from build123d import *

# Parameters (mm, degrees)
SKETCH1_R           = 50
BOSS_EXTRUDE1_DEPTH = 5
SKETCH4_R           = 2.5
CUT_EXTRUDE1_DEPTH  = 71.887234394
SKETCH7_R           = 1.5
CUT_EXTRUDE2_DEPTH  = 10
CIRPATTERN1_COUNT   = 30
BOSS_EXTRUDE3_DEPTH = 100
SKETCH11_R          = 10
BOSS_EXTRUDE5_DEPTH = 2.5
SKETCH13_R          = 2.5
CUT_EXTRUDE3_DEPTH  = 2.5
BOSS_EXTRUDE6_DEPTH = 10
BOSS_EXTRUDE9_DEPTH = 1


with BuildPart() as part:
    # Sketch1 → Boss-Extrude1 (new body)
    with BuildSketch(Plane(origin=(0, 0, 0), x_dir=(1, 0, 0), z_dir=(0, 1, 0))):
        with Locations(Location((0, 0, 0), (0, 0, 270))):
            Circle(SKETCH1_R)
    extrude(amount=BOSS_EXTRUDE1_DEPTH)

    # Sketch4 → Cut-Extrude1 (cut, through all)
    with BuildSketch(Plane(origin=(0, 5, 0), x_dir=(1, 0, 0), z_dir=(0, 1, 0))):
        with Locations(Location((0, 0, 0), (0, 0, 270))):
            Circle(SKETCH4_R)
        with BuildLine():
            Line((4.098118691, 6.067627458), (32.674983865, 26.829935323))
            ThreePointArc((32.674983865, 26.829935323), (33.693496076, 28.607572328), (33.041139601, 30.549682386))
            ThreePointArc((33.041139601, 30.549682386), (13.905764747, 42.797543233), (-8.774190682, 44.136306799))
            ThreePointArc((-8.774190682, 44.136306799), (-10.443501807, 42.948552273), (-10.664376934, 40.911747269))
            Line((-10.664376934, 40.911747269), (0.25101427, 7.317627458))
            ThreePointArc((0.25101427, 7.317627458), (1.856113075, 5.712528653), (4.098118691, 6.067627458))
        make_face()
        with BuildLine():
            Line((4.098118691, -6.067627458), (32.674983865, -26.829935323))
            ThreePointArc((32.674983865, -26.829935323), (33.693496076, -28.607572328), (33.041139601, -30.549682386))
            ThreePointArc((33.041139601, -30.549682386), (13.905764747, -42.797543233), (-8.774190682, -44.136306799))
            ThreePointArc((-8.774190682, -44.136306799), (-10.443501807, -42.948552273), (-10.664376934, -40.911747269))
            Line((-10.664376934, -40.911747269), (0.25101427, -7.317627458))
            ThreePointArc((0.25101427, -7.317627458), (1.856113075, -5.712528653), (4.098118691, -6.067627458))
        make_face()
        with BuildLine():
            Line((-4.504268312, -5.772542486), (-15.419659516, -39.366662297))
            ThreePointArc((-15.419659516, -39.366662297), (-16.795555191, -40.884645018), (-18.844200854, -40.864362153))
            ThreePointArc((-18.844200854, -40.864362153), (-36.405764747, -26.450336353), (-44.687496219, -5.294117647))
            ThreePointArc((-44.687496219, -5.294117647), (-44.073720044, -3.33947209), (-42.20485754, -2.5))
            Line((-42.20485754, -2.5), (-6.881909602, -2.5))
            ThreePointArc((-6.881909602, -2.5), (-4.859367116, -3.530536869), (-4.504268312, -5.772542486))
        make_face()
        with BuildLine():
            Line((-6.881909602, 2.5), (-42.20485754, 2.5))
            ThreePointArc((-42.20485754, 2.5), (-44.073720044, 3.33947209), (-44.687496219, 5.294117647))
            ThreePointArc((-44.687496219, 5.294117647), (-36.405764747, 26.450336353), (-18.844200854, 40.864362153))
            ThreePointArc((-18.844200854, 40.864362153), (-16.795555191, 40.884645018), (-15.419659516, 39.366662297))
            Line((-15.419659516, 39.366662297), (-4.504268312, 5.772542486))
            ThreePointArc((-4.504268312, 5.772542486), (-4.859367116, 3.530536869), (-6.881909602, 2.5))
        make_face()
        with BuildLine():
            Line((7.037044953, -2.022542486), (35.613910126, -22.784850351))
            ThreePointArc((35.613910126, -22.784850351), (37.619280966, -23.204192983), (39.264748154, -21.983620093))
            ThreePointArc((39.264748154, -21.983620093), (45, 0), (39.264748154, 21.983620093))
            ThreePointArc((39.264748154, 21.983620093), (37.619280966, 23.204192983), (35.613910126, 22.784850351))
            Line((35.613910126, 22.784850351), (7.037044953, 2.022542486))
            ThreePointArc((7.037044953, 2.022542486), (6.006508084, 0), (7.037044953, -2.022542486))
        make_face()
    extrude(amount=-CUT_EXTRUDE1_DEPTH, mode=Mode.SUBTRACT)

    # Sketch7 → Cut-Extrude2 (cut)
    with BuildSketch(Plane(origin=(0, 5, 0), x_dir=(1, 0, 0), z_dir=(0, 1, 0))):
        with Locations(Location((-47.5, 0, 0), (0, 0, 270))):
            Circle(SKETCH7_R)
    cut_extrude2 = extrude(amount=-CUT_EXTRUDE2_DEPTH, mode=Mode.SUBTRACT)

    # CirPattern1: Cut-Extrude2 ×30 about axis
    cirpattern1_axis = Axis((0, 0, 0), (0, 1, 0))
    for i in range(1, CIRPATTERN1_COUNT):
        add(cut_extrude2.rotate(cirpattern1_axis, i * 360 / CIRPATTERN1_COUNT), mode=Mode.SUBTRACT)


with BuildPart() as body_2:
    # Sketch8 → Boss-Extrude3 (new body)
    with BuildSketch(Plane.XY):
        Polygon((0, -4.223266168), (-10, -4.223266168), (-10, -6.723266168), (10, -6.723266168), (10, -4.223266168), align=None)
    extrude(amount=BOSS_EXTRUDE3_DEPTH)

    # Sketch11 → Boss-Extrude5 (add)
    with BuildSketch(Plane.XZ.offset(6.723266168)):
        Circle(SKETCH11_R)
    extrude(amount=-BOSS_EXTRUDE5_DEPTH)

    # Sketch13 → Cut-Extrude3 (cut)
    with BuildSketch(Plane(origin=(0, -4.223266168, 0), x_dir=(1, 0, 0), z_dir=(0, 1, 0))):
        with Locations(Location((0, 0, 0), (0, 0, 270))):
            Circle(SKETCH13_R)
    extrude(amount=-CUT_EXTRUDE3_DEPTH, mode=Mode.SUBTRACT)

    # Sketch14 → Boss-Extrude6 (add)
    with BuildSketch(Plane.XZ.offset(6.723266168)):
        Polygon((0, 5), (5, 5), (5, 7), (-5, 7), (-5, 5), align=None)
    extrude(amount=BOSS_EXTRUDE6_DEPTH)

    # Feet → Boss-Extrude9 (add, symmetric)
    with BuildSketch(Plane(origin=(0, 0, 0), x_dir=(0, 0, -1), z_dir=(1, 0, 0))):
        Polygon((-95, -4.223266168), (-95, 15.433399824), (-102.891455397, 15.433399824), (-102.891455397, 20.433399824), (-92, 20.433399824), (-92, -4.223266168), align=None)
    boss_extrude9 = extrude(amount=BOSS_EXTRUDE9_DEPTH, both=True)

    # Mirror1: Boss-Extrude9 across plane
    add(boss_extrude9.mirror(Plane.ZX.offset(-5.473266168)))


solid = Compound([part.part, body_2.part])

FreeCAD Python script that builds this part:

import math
import FreeCAD as App
import Part
import Sketcher
from FreeCAD import Vector
Q = App.Units.Quantity


def add_polygon(sketch, points):
    """Adds a closed chain of lines whose ends are joined by coincident constraints."""
    first, n = sketch.GeometryCount, len(points)
    for a, b in zip(points, points[1:] + points[:1]):
        sketch.addGeometry(Part.LineSegment(App.Vector(*a, 0), App.Vector(*b, 0)), False)
    for i in range(n):
        sketch.addConstraint(Sketcher.Constraint("Coincident", first + i, 2, first + (i + 1) % n, 1))

doc = App.newDocument("Part")
params = doc.addObject("Spreadsheet::Sheet", "Params")
for row, (alias, value) in enumerate([
    ("sketch1_diameter", "100 mm"),
    ("pad1_length", "5 mm"),
    ("sketch2_diameter", "5 mm"),
    ("sketch2_radius", "45 mm"),
    ("sketch3_diameter", "3 mm"),
    ("pocket2_length", "10 mm"),
    ("sketch4_width", "20 mm"),
    ("sketch4_height", "2.5 mm"),
    ("pad2_length", "100 mm"),
    ("sketch5_diameter", "20 mm"),
    ("pad3_length", "2.5 mm"),
    ("sketch6_diameter", "5 mm"),
    ("pocket3_length", "2.5 mm"),
    ("sketch7_width", "10 mm"),
    ("sketch7_height", "2 mm"),
    ("pad4_length", "10 mm"),
    ("sketch8_width", "5 mm"),
    ("sketch8_height", "3 mm"),
    ("pad5_length", "2 mm"),
], start=1):
    params.set(f"A{row}", alias)
    params.set(f"B{row}", "=" + value)
    params.setAlias(f"B{row}", alias)

body = doc.addObject("PartDesign::Body", "Body")

sketch1 = body.newObject("Sketcher::SketchObject", "Sketch")
sketch1.AttachmentSupport = (doc.getObject("XZ_Plane"), [""])
sketch1.MapMode = "FlatFace"
sketch1.addGeometry(Part.Circle(Vector(0, 0, 0), Vector(0, 0, 1), 50), False)
sketch1.addConstraint(Sketcher.Constraint("Coincident", 0, 3, -1, 1))
sketch1.addConstraint(Sketcher.Constraint("Diameter", 0, 100.0))
sketch1.setExpression("Constraints[1]", "Params.sketch1_diameter")
pad1 = body.newObject("PartDesign::Pad", "Pad")
pad1.Profile = sketch1
pad1.setExpression("Length", "Params.pad1_length")
pad1.Reversed = True

sketch2 = body.newObject("Sketcher::SketchObject", "Sketch001")
sketch2.AttachmentSupport = (doc.getObject("XZ_Plane"), [""])
sketch2.MapMode = "FlatFace"
sketch2.AttachmentOffset = App.Placement(Vector(0, 0, -5), App.Rotation())
sketch2.addGeometry(Part.Circle(Vector(0, 0, 0), Vector(0, 0, 1), 2.5), False)
sketch2.addGeometry(Part.LineSegment(Vector(4.098119, -6.067627, 0), Vector(32.674984, -26.829935, 0)), False)
sketch2.addGeometry(Part.ArcOfCircle(Part.Circle(Vector(31.205521, -28.852478, 0), Vector(0, 0, 1), 2.5), math.radians(-42.756327), math.radians(54)), False)
sketch2.addGeometry(Part.ArcOfCircle(Part.Circle(Vector(0, 0, 0), Vector(0, 0, 1), 45), math.radians(-101.243673), math.radians(-42.756327)), False)
sketch2.addGeometry(Part.ArcOfCircle(Part.Circle(Vector(-8.286736, -41.68429, 0), Vector(0, 0, 1), 2.5), math.radians(162), math.radians(258.756327)), False)
sketch2.addGeometry(Part.LineSegment(Vector(-10.664377, -40.911747, 0), Vector(0.251014, -7.317627, 0)), False)
sketch2.addGeometry(Part.ArcOfCircle(Part.Circle(Vector(2.628656, -8.09017, 0), Vector(0, 0, 1), 2.5), math.radians(54), math.radians(162)), False)
sketch2.addGeometry(Part.LineSegment(Vector(32.674984, 26.829935, 0), Vector(4.098119, 6.067627, 0)), False)
sketch2.addGeometry(Part.ArcOfCircle(Part.Circle(Vector(2.628656, 8.09017, 0), Vector(0, 0, 1), 2.5), math.radians(-162), math.radians(-54)), False)
sketch2.addGeometry(Part.LineSegment(Vector(0.251014, 7.317627, 0), Vector(-10.664377, 40.911747, 0)), False)
sketch2.addGeometry(Part.ArcOfCircle(Part.Circle(Vector(-8.286736, 41.68429, 0), Vector(0, 0, 1), 2.5), math.radians(101.243673), math.radians(198)), False)
sketch2.addGeometry(Part.ArcOfCircle(Part.Circle(Vector(0, 0, 0), Vector(0, 0, 1), 45), math.radians(42.756327), math.radians(101.243673)), False)
sketch2.addGeometry(Part.ArcOfCircle(Part.Circle(Vector(31.205521, 28.852478, 0), Vector(0, 0, 1), 2.5), math.radians(-54), math.radians(42.756327)), False)
sketch2.addGeometry(Part.LineSegment(Vector(-15.41966, 39.366662, 0), Vector(-4.504268, 5.772542, 0)), False)
sketch2.addGeometry(Part.ArcOfCircle(Part.Circle(Vector(-6.88191, 5, 0), Vector(0, 0, 1), 2.5), math.radians(-90), math.radians(18)), False)
sketch2.addGeometry(Part.LineSegment(Vector(-6.88191, 2.5, 0), Vector(-42.204858, 2.5, 0)), False)
sketch2.addGeometry(Part.ArcOfCircle(Part.Circle(Vector(-42.204858, 5, 0), Vector(0, 0, 1), 2.5), math.radians(173.243673), math.radians(270)), False)
sketch2.addGeometry(Part.ArcOfCircle(Part.Circle(Vector(0, 0, 0), Vector(0, 0, 1), 45), math.radians(114.756327), math.radians(173.243673)), False)
sketch2.addGeometry(Part.ArcOfCircle(Part.Circle(Vector(-17.797301, 38.59412, 0), Vector(0, 0, 1), 2.5), math.radians(18), math.radians(114.756327)), False)
sketch2.addGeometry(Part.LineSegment(Vector(-42.204858, -2.5, 0), Vector(-6.88191, -2.5, 0)), False)
sketch2.addGeometry(Part.ArcOfCircle(Part.Circle(Vector(-6.88191, -5, 0), Vector(0, 0, 1), 2.5), math.radians(-18), math.radians(90)), False)
sketch2.addGeometry(Part.LineSegment(Vector(-4.504268, -5.772542, 0), Vector(-15.41966, -39.366662, 0)), False)
sketch2.addGeometry(Part.ArcOfCircle(Part.Circle(Vector(-17.797301, -38.59412, 0), Vector(0, 0, 1), 2.5), math.radians(-114.756327), math.radians(-18)), False)
sketch2.addGeometry(Part.ArcOfCircle(Part.Circle(Vector(0, 0, 0), Vector(0, 0, 1), 45), math.radians(-173.243673), math.radians(-114.756327)), False)
sketch2.addGeometry(Part.ArcOfCircle(Part.Circle(Vector(-42.204858, -5, 0), Vector(0, 0, 1), 2.5), math.radians(90), math.radians(186.756327)), False)
sketch2.addGeometry(Part.LineSegment(Vector(7.037045, 2.022542, 0), Vector(35.61391, 22.78485, 0)), False)
sketch2.addGeometry(Part.ArcOfCircle(Part.Circle(Vector(37.083373, 20.762308, 0), Vector(0, 0, 1), 2.5), math.radians(29.243673), math.radians(126)), False)
sketch2.addGeometry(Part.ArcOfCircle(Part.Circle(Vector(0, 0, 0), Vector(0, 0, 1), 45), math.radians(-29.243673), math.radians(29.243673)), False)
sketch2.addGeometry(Part.ArcOfCircle(Part.Circle(Vector(37.083373, -20.762308, 0), Vector(0, 0, 1), 2.5), math.radians(-126), math.radians(-29.243673)), False)
sketch2.addGeometry(Part.LineSegment(Vector(35.61391, -22.78485, 0), Vector(7.037045, -2.022542, 0)), False)
sketch2.addGeometry(Part.ArcOfCircle(Part.Circle(Vector(8.506508, 0, 0), Vector(0, 0, 1), 2.5), math.radians(126), math.radians(234)), False)
sketch2.addConstraint(Sketcher.Constraint("Tangent", 1, 2, 2, 2))
sketch2.addConstraint(Sketcher.Constraint("Tangent", 2, 1, 3, 2))
sketch2.addConstraint(Sketcher.Constraint("Tangent", 3, 1, 4, 2))
sketch2.addConstraint(Sketcher.Constraint("Tangent", 4, 1, 5, 1))
sketch2.addConstraint(Sketcher.Constraint("Tangent", 5, 2, 6, 2))
sketch2.addConstraint(Sketcher.Constraint("Tangent", 6, 1, 1, 1))
sketch2.addConstraint(Sketcher.Constraint("Tangent", 7, 2, 8, 2))
sketch2.addConstraint(Sketcher.Constraint("Tangent", 8, 1, 9, 1))
sketch2.addConstraint(Sketcher.Constraint("Tangent", 9, 2, 10, 2))
sketch2.addConstraint(Sketcher.Constraint("Tangent", 10, 1, 11, 2))
sketch2.addConstraint(Sketcher.Constraint("Tangent", 11, 1, 12, 2))
sketch2.addConstraint(Sketcher.Constraint("Tangent", 12, 1, 7, 1))
sketch2.addConstraint(Sketcher.Constraint("Tangent", 13, 2, 14, 2))
sketch2.addConstraint(Sketcher.Constraint("Tangent", 14, 1, 15, 1))
sketch2.addConstraint(Sketcher.Constraint("Tangent", 15, 2, 16, 2))
sketch2.addConstraint(Sketcher.Constraint("Tangent", 16, 1, 17, 2))
sketch2.addConstraint(Sketcher.Constraint("Tangent", 17, 1, 18, 2))
sketch2.addConstraint(Sketcher.Constraint("Tangent", 18, 1, 13, 1))
sketch2.addConstraint(Sketcher.Constraint("Tangent", 19, 2, 20, 2))
sketch2.addConstraint(Sketcher.Constraint("Tangent", 20, 1, 21, 1))
sketch2.addConstraint(Sketcher.Constraint("Tangent", 21, 2, 22, 2))
sketch2.addConstraint(Sketcher.Constraint("Tangent", 22, 1, 23, 2))
sketch2.addConstraint(Sketcher.Constraint("Tangent", 23, 1, 24, 2))
sketch2.addConstraint(Sketcher.Constraint("Tangent", 24, 1, 19, 1))
sketch2.addConstraint(Sketcher.Constraint("Tangent", 25, 2, 26, 2))
sketch2.addConstraint(Sketcher.Constraint("Tangent", 26, 1, 27, 2))
sketch2.addConstraint(Sketcher.Constraint("Tangent", 27, 1, 28, 2))
sketch2.addConstraint(Sketcher.Constraint("Tangent", 28, 1, 29, 1))
sketch2.addConstraint(Sketcher.Constraint("Tangent", 29, 2, 30, 2))
sketch2.addConstraint(Sketcher.Constraint("Tangent", 30, 1, 25, 1))
sketch2.addConstraint(Sketcher.Constraint("Horizontal", 15))
sketch2.addConstraint(Sketcher.Constraint("Horizontal", 19))
sketch2.addConstraint(Sketcher.Constraint("Coincident", 0, 3, -1, 1))
sketch2.addConstraint(Sketcher.Constraint("Coincident", 3, 3, -1, 1))
sketch2.addConstraint(Sketcher.Constraint("Coincident", 11, 3, -1, 1))
sketch2.addConstraint(Sketcher.Constraint("Coincident", 17, 3, -1, 1))
sketch2.addConstraint(Sketcher.Constraint("Coincident", 23, 3, -1, 1))
sketch2.addConstraint(Sketcher.Constraint("Coincident", 27, 3, -1, 1))
sketch2.addConstraint(Sketcher.Constraint("Equal", 0, 2))
sketch2.addConstraint(Sketcher.Constraint("Equal", 2, 4))
sketch2.addConstraint(Sketcher.Constraint("Equal", 4, 6))
sketch2.addConstraint(Sketcher.Constraint("Equal", 6, 8))
sketch2.addConstraint(Sketcher.Constraint("Equal", 8, 10))
sketch2.addConstraint(Sketcher.Constraint("Equal", 3, 11))
sketch2.addConstraint(Sketcher.Constraint("Equal", 10, 12))
sketch2.addConstraint(Sketcher.Constraint("Equal", 12, 14))
sketch2.addConstraint(Sketcher.Constraint("Equal", 14, 16))
sketch2.addConstraint(Sketcher.Constraint("Equal", 11, 17))
sketch2.addConstraint(Sketcher.Constraint("Equal", 16, 18))
sketch2.addConstraint(Sketcher.Constraint("Equal", 18, 20))
sketch2.addConstraint(Sketcher.Constraint("Equal", 20, 22))
sketch2.addConstraint(Sketcher.Constraint("Equal", 17, 23))
sketch2.addConstraint(Sketcher.Constraint("Equal", 22, 24))
sketch2.addConstraint(Sketcher.Constraint("Equal", 24, 26))
sketch2.addConstraint(Sketcher.Constraint("Equal", 23, 27))
sketch2.addConstraint(Sketcher.Constraint("Equal", 26, 28))
sketch2.addConstraint(Sketcher.Constraint("Equal", 28, 30))
sketch2.addConstraint(Sketcher.Constraint("Symmetric", 6, 3, 8, 3, -1))
sketch2.addConstraint(Sketcher.Constraint("Symmetric", 14, 3, 20, 3, -1))
sketch2.addConstraint(Sketcher.Constraint("Symmetric", 25, 2, 28, 1, -1))
sketch2.addConstraint(Sketcher.Constraint("Parallel", 9, 13))
sketch2.addConstraint(Sketcher.Constraint("Parallel", 5, 21))
sketch2.addConstraint(Sketcher.Constraint("Parallel", 7, 25))
sketch2.addConstraint(Sketcher.Constraint("Parallel", 1, 29))
sketch2.addConstraint(Sketcher.Constraint("Vertical", 4, 3, 10, 3))
sketch2.addConstraint(Sketcher.Constraint("Equal", 1, 5))
sketch2.addConstraint(Sketcher.Constraint("Equal", 9, 13))
sketch2.addConstraint(Sketcher.Constraint("Equal", 21, 25))
sketch2.addConstraint(Sketcher.Constraint("Diameter", 0, 5.0))
sketch2.addConstraint(Sketcher.Constraint("Radius", 3, 45.0))
sketch2.addConstraint(Sketcher.Constraint("Angle", 1, Q("-36 deg")))
sketch2.addConstraint(Sketcher.Constraint("Angle", 5, Q("72 deg")))
sketch2.addConstraint(Sketcher.Constraint("DistanceY", -1, 1, 14, 3, 5.0))
sketch2.addConstraint(Sketcher.Constraint("DistanceX", 18, 3, -1, 1, 17.797301))
sketch2.setExpression("Constraints[68]", "Params.sketch2_diameter")
sketch2.setExpression("Constraints[69]", "Params.sketch2_radius")
pocket1 = body.newObject("PartDesign::Pocket", "Pocket")
pocket1.Profile = sketch2
pocket1.Type = "ThroughAll"
pocket1.Reversed = True

sketch3 = body.newObject("Sketcher::SketchObject", "Sketch002")
sketch3.AttachmentSupport = (doc.getObject("XZ_Plane"), [""])
sketch3.MapMode = "FlatFace"
sketch3.AttachmentOffset = App.Placement(Vector(0, 0, -5), App.Rotation())
sketch3.addGeometry(Part.Circle(Vector(-47.5, 0, 0), Vector(0, 0, 1), 1.5), False)
sketch3.addConstraint(Sketcher.Constraint("PointOnObject", 0, 3, -1))
sketch3.addConstraint(Sketcher.Constraint("Diameter", 0, 3.0))
sketch3.addConstraint(Sketcher.Constraint("DistanceX", 0, 3, -1, 1, 47.5))
sketch3.setExpression("Constraints[1]", "Params.sketch3_diameter")
pocket2 = body.newObject("PartDesign::Pocket", "Pocket001")
pocket2.Profile = sketch3
pocket2.setExpression("Length", "Params.pocket2_length")
pocket2.Reversed = True
doc.recompute()

polarpattern = body.newObject("PartDesign::PolarPattern", "PolarPattern")
polarpattern.Originals = [pocket2]
polarpattern.Axis = (doc.getObject("Y_Axis"), [""])
polarpattern.Angle = 360
polarpattern.Occurrences = 30
body.Tip = polarpattern
body2 = doc.addObject("PartDesign::Body", "Body001")

sketch4 = body2.newObject("Sketcher::SketchObject", "Sketch003")
sketch4.AttachmentSupport = (doc.getObject("XY_Plane001"), [""])
sketch4.MapMode = "FlatFace"
add_polygon(sketch4, [(-10, -4.223266), (-10, -6.723266), (10, -6.723266), (10, -4.223266)])
sketch4.addConstraint(Sketcher.Constraint("Vertical", 0))
sketch4.addConstraint(Sketcher.Constraint("Horizontal", 1))
sketch4.addConstraint(Sketcher.Constraint("Vertical", 2))
sketch4.addConstraint(Sketcher.Constraint("Horizontal", 3))
sketch4.addConstraint(Sketcher.Constraint("DistanceX", 1, 1, 1, 2, 20.0))
sketch4.addConstraint(Sketcher.Constraint("DistanceY", 0, 2, 0, 1, 2.5))
sketch4.addConstraint(Sketcher.Constraint("DistanceX", 0, 2, -1, 1, 10.0))
sketch4.addConstraint(Sketcher.Constraint("DistanceY", 0, 2, -1, 1, 6.723266))
sketch4.setExpression("Constraints[8]", "Params.sketch4_width")
sketch4.setExpression("Constraints[9]", "Params.sketch4_height")
pad2 = body2.newObject("PartDesign::Pad", "Pad001")
pad2.Profile = sketch4
pad2.setExpression("Length", "Params.pad2_length")

sketch5 = body2.newObject("Sketcher::SketchObject", "Sketch004")
sketch5.AttachmentSupport = (doc.getObject("XZ_Plane001"), [""])
sketch5.MapMode = "FlatFace"
sketch5.AttachmentOffset = App.Placement(Vector(0, 0, 6.723266), App.Rotation())
sketch5.addGeometry(Part.Circle(Vector(0, 0, 0), Vector(0, 0, 1), 10), False)
sketch5.addConstraint(Sketcher.Constraint("Coincident", 0, 3, -1, 1))
sketch5.addConstraint(Sketcher.Constraint("Diameter", 0, 20.0))
sketch5.setExpression("Constraints[1]", "Params.sketch5_diameter")
pad3 = body2.newObject("PartDesign::Pad", "Pad002")
pad3.Profile = sketch5
pad3.setExpression("Length", "Params.pad3_length")
pad3.Reversed = True

sketch6 = body2.newObject("Sketcher::SketchObject", "Sketch005")
sketch6.AttachmentSupport = (doc.getObject("XZ_Plane001"), [""])
sketch6.MapMode = "FlatFace"
sketch6.AttachmentOffset = App.Placement(Vector(0, 0, 4.223266), App.Rotation())
sketch6.addGeometry(Part.Circle(Vector(0, 0, 0), Vector(0, 0, 1), 2.5), False)
sketch6.addConstraint(Sketcher.Constraint("Coincident", 0, 3, -1, 1))
sketch6.addConstraint(Sketcher.Constraint("Diameter", 0, 5.0))
sketch6.setExpression("Constraints[1]", "Params.sketch6_diameter")
pocket3 = body2.newObject("PartDesign::Pocket", "Pocket002")
pocket3.Profile = sketch6
pocket3.setExpression("Length", "Params.pocket3_length")
pocket3.Reversed = True

sketch7 = body2.newObject("Sketcher::SketchObject", "Sketch006")
sketch7.AttachmentSupport = (doc.getObject("XZ_Plane001"), [""])
sketch7.MapMode = "FlatFace"
sketch7.AttachmentOffset = App.Placement(Vector(0, 0, 6.723266), App.Rotation())
add_polygon(sketch7, [(5, 5), (5, 7), (-5, 7), (-5, 5)])
sketch7.addConstraint(Sketcher.Constraint("Vertical", 0))
sketch7.addConstraint(Sketcher.Constraint("Horizontal", 1))
sketch7.addConstraint(Sketcher.Constraint("Vertical", 2))
sketch7.addConstraint(Sketcher.Constraint("Horizontal", 3))
sketch7.addConstraint(Sketcher.Constraint("DistanceX", 1, 2, 1, 1, 10.0))
sketch7.addConstraint(Sketcher.Constraint("DistanceY", 0, 1, 0, 2, 2.0))
sketch7.addConstraint(Sketcher.Constraint("DistanceX", -1, 1, 0, 2, 5.0))
sketch7.addConstraint(Sketcher.Constraint("DistanceY", -1, 1, 0, 2, 7.0))
sketch7.setExpression("Constraints[8]", "Params.sketch7_width")
sketch7.setExpression("Constraints[9]", "Params.sketch7_height")
pad4 = body2.newObject("PartDesign::Pad", "Pad003")
pad4.Profile = sketch7
pad4.setExpression("Length", "Params.pad4_length")

sketch8 = body2.newObject("Sketcher::SketchObject", "Sketch007")
sketch8.AttachmentSupport = (doc.getObject("YZ_Plane001"), [""])
sketch8.MapMode = "FlatFace"
add_polygon(sketch8, [(15.4334, 95), (-4.223266, 95), (-4.223266, 92), (20.4334, 92), (20.4334, 102.891455), (15.4334, 102.891455)])
sketch8.addConstraint(Sketcher.Constraint("Horizontal", 0))
sketch8.addConstraint(Sketcher.Constraint("Vertical", 1))
sketch8.addConstraint(Sketcher.Constraint("Horizontal", 2))
sketch8.addConstraint(Sketcher.Constraint("Vertical", 3))
sketch8.addConstraint(Sketcher.Constraint("Horizontal", 4))
sketch8.addConstraint(Sketcher.Constraint("Vertical", 5))
sketch8.addConstraint(Sketcher.Constraint("DistanceX", 4, 2, 4, 1, 5.0))
sketch8.addConstraint(Sketcher.Constraint("DistanceY", 1, 2, 1, 1, 3.0))
sketch8.addConstraint(Sketcher.Constraint("DistanceY", -1, 1, 0, 2, 95.0))
sketch8.addConstraint(Sketcher.Constraint("DistanceX", -1, 1, 2, 2, 20.4334))
sketch8.addConstraint(Sketcher.Constraint("DistanceX", 0, 2, 0, 1, 19.656666))
sketch8.addConstraint(Sketcher.Constraint("DistanceY", 3, 1, 3, 2, 10.891455))
sketch8.setExpression("Constraints[12]", "Params.sketch8_width")
sketch8.setExpression("Constraints[13]", "Params.sketch8_height")
pad5 = body2.newObject("PartDesign::Pad", "Pad004")
pad5.Profile = sketch8
pad5.setExpression("Length", "Params.pad5_length")
pad5.Midplane = True
doc.recompute()

datumplane = body2.newObject("PartDesign::Plane", "DatumPlane")
datumplane.AttachmentSupport = (doc.getObject("XZ_Plane001"), [""])
datumplane.MapMode = "FlatFace"
datumplane.AttachmentOffset = App.Placement(Vector(0, 0, 5.473266), App.Rotation())
mirrored = body2.newObject("PartDesign::Mirrored", "Mirrored")
mirrored.Originals = [pad5]
mirrored.MirrorPlane = (datumplane, [""])
body2.Tip = mirrored

doc.recompute()
